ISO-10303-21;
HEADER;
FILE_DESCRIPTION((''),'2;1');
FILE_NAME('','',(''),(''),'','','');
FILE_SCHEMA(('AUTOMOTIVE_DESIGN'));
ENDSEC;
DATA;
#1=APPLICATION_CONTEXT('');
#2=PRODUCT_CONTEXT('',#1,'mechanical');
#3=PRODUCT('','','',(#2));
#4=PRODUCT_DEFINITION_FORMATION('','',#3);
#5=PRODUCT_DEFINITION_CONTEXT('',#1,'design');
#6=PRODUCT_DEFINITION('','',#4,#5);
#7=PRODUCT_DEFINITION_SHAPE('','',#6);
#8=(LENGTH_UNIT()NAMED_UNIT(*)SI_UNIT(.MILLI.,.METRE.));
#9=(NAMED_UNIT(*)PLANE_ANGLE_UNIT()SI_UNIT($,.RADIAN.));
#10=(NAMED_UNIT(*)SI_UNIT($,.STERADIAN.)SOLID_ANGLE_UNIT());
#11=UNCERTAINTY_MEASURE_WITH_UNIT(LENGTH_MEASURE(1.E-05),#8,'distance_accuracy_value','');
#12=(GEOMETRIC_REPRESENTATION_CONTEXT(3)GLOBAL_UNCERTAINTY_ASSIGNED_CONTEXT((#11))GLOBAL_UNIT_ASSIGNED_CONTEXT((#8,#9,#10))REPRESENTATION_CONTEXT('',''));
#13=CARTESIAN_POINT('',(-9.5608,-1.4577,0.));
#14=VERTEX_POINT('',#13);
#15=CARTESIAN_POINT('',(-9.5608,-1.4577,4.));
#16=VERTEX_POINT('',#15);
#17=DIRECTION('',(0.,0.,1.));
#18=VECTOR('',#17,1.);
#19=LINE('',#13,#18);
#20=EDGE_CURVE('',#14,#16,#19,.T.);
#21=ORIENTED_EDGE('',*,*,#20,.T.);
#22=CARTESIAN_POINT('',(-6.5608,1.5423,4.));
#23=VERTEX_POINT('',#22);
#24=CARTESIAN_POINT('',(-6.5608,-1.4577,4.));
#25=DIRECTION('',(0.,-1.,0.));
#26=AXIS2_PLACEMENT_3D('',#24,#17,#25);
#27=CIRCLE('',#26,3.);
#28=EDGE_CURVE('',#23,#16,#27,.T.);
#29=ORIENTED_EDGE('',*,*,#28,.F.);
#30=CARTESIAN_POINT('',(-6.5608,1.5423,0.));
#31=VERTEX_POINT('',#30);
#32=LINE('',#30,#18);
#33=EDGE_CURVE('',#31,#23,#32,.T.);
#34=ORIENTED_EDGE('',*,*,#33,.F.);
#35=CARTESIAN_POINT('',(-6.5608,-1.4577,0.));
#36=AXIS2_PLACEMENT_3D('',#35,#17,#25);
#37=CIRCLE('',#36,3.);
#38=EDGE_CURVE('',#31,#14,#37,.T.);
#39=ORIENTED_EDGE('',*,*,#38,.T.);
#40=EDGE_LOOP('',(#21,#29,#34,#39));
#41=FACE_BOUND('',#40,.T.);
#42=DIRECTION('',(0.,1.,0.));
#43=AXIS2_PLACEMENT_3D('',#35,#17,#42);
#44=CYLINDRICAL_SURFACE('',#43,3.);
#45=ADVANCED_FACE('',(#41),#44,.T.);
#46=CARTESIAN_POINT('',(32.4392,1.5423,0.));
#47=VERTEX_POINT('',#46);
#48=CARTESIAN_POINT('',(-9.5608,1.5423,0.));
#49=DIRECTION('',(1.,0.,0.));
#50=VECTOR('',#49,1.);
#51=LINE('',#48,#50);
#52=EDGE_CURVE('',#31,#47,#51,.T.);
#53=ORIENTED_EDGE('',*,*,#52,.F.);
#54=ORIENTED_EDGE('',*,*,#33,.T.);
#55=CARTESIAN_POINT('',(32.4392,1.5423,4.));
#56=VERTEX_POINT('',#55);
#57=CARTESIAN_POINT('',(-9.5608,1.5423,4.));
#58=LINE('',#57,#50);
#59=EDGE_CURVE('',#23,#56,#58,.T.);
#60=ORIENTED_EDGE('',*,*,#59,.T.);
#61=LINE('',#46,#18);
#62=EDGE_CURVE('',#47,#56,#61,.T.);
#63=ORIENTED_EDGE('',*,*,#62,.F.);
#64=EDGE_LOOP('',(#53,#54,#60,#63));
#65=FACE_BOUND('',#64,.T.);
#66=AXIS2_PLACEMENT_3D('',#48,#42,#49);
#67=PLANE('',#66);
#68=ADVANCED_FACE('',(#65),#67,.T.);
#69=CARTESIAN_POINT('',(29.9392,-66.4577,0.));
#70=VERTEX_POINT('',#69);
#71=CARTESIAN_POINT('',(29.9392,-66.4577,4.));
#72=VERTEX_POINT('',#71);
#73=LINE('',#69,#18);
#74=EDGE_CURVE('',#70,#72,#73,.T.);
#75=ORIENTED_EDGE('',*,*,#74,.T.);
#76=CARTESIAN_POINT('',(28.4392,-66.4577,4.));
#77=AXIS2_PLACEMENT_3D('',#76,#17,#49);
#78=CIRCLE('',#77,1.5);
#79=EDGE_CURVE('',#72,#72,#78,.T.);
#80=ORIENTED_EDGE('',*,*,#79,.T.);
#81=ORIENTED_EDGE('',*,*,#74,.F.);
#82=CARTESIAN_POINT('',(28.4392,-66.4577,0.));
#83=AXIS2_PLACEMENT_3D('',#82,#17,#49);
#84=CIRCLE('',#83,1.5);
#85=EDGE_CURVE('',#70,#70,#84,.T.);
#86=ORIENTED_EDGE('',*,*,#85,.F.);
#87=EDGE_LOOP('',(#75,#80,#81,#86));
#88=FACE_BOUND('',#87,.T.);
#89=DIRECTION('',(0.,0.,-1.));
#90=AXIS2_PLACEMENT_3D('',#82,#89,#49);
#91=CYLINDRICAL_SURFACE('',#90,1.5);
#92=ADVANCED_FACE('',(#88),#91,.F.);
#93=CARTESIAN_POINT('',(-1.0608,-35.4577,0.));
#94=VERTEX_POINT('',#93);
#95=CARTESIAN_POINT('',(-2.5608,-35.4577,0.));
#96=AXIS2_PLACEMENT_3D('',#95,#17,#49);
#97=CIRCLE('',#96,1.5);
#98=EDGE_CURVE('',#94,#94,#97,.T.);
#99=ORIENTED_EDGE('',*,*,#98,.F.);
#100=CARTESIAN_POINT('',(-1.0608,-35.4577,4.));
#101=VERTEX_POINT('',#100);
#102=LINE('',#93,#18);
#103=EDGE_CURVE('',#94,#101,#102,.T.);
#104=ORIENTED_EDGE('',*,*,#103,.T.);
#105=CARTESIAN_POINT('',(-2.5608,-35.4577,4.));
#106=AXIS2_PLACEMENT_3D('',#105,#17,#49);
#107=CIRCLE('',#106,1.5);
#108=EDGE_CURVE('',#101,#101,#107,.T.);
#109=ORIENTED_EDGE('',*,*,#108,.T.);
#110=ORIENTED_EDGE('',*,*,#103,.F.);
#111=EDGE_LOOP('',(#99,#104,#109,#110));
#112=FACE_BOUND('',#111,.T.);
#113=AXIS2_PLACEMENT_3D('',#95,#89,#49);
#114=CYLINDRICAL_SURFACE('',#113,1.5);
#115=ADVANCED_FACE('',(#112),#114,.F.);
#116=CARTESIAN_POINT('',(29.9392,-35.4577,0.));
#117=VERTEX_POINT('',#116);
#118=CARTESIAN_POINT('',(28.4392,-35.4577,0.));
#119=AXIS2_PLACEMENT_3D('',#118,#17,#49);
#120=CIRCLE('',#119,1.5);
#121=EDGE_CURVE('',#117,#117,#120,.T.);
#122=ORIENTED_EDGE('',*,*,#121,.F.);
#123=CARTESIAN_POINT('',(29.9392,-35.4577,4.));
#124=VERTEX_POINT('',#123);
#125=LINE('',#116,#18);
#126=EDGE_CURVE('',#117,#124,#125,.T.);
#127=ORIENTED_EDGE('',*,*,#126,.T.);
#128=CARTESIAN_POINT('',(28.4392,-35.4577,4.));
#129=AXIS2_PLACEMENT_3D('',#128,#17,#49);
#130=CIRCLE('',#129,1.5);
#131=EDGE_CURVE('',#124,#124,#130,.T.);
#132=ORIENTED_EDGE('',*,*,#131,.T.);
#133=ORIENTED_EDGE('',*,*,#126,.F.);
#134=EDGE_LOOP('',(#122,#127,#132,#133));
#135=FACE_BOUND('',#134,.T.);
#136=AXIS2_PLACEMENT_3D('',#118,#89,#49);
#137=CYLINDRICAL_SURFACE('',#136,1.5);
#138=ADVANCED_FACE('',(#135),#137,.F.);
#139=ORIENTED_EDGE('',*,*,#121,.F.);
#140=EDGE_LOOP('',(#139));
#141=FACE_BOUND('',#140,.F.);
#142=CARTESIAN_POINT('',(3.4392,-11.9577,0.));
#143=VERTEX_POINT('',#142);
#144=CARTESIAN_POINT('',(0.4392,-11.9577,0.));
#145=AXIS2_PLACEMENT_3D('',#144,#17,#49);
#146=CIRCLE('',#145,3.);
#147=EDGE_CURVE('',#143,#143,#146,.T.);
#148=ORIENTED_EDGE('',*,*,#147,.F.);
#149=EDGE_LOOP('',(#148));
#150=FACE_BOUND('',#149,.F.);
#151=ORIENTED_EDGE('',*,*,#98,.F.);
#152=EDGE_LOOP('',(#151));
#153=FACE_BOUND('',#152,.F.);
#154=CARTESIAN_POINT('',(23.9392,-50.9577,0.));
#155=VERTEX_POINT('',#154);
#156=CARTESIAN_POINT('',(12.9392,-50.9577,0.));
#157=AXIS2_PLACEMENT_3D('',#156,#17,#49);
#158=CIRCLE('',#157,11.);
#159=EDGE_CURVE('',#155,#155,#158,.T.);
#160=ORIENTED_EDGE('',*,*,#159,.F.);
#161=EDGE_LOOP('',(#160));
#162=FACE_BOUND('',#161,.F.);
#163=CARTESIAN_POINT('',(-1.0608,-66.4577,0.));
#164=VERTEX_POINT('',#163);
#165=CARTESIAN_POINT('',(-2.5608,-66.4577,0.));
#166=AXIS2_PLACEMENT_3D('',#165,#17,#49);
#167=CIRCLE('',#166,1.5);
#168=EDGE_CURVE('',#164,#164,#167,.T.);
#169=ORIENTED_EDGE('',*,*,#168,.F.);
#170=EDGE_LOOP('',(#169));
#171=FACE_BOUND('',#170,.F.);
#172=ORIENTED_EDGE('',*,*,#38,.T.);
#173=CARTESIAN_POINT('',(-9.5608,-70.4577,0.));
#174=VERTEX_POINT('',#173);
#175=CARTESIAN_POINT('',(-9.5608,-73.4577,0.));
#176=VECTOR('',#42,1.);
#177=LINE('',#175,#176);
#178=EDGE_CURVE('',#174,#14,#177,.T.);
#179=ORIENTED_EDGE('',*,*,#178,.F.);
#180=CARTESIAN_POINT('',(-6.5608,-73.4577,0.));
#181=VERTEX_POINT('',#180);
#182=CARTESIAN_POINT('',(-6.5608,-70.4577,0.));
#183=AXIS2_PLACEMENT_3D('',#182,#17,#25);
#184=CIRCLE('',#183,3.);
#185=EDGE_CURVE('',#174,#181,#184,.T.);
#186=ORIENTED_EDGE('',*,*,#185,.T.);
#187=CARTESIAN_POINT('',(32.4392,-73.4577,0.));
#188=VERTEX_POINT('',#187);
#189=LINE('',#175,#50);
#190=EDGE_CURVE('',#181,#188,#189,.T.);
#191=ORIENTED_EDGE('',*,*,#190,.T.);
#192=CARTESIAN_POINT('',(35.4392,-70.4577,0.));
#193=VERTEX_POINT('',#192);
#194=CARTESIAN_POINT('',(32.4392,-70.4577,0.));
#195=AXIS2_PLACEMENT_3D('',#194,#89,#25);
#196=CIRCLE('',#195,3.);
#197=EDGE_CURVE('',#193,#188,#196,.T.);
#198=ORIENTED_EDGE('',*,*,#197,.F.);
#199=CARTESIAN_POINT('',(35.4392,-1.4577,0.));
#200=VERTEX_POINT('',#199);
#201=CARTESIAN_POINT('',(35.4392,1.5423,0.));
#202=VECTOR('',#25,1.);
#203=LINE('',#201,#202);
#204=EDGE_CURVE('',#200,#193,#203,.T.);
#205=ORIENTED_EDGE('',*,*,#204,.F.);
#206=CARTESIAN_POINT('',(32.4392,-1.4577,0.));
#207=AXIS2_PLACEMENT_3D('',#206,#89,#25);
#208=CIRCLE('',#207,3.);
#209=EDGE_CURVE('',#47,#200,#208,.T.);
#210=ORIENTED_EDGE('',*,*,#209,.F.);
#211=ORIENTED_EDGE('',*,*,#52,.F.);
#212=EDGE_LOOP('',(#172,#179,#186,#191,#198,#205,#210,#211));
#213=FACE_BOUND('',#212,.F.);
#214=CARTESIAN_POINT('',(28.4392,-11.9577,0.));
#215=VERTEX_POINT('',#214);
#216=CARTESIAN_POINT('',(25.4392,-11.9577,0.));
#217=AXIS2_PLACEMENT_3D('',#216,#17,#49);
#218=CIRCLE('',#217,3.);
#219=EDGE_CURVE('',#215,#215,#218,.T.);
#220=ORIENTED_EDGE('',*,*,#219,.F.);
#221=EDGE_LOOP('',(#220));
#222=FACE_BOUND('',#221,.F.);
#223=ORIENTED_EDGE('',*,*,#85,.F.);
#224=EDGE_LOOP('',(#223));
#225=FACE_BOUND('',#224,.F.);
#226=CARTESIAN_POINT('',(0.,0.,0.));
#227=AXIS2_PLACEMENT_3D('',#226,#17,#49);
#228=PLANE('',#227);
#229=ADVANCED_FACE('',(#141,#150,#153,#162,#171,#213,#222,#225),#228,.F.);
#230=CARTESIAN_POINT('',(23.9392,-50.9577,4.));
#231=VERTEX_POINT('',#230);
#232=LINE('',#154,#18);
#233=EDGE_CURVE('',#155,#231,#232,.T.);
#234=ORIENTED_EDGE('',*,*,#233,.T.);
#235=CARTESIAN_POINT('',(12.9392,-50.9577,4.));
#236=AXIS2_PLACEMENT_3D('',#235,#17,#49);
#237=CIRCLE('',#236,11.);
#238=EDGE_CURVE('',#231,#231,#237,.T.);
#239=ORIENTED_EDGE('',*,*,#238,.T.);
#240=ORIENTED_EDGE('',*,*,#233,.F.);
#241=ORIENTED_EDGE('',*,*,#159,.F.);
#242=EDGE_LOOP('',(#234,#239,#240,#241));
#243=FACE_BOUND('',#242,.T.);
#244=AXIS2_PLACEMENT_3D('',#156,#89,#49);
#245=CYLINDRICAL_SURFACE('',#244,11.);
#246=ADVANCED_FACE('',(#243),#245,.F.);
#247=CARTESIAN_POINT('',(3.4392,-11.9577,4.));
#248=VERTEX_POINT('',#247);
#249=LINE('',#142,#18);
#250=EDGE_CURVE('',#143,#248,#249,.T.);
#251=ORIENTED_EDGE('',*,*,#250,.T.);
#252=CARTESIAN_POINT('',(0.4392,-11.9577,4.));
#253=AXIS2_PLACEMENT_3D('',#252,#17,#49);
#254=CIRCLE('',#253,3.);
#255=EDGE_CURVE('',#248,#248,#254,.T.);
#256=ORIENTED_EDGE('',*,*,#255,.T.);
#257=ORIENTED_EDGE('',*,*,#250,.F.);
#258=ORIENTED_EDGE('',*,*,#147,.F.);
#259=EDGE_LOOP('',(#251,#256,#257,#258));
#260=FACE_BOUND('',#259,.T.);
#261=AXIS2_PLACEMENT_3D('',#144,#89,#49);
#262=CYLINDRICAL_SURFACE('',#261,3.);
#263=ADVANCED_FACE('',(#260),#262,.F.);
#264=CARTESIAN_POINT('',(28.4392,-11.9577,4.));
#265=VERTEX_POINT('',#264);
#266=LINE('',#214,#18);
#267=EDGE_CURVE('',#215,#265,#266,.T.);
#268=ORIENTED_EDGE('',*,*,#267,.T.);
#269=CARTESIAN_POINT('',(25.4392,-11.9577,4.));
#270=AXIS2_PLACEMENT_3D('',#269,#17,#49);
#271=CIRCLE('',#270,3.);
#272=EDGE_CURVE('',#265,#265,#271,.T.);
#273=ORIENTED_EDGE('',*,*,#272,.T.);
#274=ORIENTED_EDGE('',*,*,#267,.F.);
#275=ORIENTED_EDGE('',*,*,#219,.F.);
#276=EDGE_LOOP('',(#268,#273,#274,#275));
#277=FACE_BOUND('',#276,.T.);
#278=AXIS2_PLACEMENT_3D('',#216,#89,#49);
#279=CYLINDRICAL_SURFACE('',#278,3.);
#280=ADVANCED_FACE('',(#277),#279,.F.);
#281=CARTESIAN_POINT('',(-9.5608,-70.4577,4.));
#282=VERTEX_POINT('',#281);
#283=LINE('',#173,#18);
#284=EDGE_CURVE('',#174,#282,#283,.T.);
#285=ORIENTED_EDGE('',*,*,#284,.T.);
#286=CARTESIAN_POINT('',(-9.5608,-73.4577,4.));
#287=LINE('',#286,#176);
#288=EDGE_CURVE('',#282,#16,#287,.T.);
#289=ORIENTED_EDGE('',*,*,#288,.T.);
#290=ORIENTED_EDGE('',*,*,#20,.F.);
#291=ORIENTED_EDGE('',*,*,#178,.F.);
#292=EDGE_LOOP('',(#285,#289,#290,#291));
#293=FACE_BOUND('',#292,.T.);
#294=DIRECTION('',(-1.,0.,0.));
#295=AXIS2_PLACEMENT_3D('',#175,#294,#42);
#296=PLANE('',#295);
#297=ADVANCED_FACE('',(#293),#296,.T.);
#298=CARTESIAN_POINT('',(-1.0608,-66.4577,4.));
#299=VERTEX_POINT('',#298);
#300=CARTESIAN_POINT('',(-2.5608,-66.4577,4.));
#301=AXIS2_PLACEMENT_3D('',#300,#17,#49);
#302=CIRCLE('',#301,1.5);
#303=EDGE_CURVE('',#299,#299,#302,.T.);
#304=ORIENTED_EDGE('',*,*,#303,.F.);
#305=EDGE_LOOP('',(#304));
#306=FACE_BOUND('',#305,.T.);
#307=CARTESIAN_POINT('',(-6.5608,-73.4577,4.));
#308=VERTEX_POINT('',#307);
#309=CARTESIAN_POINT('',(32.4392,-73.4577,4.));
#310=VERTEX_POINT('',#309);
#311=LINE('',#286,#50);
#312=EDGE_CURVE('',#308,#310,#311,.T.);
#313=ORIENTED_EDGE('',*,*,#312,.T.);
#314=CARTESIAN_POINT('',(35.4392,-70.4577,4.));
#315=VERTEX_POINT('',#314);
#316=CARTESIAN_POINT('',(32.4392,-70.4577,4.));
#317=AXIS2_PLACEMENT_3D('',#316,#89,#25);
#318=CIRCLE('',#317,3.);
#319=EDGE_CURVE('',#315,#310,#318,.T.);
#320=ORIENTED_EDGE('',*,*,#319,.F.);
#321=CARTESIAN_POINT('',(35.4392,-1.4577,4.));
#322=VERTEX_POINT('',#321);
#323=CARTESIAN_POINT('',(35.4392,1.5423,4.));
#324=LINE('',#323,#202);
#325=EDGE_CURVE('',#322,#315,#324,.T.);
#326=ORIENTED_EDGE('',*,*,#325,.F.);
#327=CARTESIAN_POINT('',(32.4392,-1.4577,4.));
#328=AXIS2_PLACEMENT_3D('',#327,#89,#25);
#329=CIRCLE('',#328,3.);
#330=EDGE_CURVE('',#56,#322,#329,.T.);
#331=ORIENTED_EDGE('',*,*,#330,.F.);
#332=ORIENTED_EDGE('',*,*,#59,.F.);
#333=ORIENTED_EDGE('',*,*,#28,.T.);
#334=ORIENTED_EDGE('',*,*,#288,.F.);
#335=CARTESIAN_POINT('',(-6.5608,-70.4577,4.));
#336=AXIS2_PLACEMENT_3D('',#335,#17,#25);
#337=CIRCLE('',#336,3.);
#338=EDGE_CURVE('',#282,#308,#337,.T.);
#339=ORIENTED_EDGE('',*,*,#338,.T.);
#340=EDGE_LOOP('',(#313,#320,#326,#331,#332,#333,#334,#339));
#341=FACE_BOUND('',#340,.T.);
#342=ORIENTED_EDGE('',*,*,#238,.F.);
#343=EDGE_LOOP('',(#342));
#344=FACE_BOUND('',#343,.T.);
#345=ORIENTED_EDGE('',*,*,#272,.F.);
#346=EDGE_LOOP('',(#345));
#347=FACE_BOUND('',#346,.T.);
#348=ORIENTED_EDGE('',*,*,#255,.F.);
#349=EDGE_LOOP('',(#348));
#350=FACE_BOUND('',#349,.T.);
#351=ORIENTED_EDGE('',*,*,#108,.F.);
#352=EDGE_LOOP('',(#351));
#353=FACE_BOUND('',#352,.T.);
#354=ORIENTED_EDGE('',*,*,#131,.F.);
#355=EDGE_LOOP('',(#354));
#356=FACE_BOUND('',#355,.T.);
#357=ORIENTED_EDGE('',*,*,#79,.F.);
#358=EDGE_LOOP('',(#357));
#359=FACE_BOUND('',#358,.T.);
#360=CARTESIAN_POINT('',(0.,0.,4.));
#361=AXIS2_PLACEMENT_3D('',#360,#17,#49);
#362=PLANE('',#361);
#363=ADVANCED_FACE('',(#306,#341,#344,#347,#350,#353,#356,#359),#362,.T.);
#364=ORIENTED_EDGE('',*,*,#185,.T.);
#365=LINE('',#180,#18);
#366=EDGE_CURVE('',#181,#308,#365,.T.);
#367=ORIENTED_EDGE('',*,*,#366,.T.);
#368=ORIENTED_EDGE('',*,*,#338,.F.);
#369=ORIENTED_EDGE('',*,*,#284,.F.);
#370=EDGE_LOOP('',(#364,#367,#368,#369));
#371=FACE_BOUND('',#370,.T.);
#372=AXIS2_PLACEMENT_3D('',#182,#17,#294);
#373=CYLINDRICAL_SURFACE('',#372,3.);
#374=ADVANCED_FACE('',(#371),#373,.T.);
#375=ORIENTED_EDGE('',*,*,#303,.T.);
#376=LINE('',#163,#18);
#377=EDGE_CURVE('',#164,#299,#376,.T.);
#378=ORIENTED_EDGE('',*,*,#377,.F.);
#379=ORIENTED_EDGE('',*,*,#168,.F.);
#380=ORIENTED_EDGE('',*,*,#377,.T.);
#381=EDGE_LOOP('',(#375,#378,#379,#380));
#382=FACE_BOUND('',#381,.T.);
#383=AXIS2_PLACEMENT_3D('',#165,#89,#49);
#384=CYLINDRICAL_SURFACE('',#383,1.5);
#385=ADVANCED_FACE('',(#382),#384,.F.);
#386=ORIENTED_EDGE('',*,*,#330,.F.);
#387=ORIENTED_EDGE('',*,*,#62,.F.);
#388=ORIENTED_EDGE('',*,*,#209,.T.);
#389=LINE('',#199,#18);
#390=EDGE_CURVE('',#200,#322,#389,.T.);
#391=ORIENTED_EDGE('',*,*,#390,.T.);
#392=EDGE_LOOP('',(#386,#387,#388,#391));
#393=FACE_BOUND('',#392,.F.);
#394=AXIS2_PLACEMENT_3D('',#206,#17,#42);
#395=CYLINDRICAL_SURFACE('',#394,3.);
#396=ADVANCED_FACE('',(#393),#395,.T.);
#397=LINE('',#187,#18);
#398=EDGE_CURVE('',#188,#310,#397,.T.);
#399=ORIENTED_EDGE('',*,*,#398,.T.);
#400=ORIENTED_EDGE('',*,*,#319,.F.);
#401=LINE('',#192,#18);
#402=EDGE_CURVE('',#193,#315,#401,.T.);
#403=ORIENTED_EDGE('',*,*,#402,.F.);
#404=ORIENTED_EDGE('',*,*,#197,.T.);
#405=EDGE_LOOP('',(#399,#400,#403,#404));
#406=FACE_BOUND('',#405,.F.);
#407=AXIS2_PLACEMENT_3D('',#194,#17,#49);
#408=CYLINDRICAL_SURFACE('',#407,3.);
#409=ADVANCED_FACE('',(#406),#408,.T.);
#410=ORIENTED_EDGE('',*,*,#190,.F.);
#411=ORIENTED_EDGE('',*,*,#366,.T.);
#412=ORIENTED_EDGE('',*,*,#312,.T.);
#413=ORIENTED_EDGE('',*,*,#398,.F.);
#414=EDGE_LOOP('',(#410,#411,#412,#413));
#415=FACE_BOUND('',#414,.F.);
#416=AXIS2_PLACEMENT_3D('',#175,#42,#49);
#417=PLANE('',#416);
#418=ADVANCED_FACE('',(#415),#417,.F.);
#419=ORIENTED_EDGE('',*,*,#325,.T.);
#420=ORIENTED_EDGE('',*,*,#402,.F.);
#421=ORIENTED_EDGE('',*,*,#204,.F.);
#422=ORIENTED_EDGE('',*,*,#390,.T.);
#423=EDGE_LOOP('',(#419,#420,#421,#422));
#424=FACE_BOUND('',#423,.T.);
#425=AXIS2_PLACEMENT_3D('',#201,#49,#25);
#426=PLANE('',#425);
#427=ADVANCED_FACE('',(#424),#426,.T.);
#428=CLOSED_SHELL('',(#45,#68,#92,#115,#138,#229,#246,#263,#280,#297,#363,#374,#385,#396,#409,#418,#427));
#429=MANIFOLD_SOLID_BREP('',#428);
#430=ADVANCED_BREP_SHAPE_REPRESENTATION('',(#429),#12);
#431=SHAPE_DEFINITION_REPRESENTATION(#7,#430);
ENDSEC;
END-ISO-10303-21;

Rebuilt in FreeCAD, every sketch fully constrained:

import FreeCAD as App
import Part
import Sketcher
from FreeCAD import Vector
Q = App.Units.Quantity


def edges_at(feature, points):
    """Names of the edges that pass closest to the given points."""
    edges = feature.Shape.Edges
    near = lambda p: min(range(len(edges)), key=lambda i: edges[i].distToShape(Part.Vertex(*p))[0])
    return sorted({f"Edge{near(p) + 1}" for p in points})


def add_polygon(sketch, points):
    """Adds a closed chain of lines whose ends are joined by coincident constraints."""
    first, n = sketch.GeometryCount, len(points)
    for a, b in zip(points, points[1:] + points[:1]):
        sketch.addGeometry(Part.LineSegment(App.Vector(*a, 0), App.Vector(*b, 0)), False)
    for i in range(n):
        sketch.addConstraint(Sketcher.Constraint("Coincident", first + i, 2, first + (i + 1) % n, 1))

doc = App.newDocument("Part")
params = doc.addObject("Spreadsheet::Sheet", "Params")
for row, (alias, value) in enumerate([
    ("sketch1_diameter", "6 mm"),
    ("sketch1_diameter2", "3 mm"),
    ("sketch1_diameter3", "22 mm"),
    ("sketch1_width", "45 mm"),
    ("sketch1_height", "75 mm"),
    ("pad1_length", "4 mm"),
    ("fillet_radius", "3 mm"),
], start=1):
    params.set(f"A{row}", alias)
    params.set(f"B{row}", "=" + value)
    params.setAlias(f"B{row}", alias)

body = doc.addObject("PartDesign::Body", "Body")

sketch1 = doc.addObject("Sketcher::SketchObject", "Sketch")
body.addObject(sketch1)
sketch1.AttachmentSupport = (doc.XY_Plane, [""])
sketch1.MapMode = "FlatFace"
add_polygon(sketch1, [(35.4392, 1.5423), (-9.5608, 1.5423), (-9.5608, -73.4577), (35.4392, -73.4577)])
sketch1.addGeometry(Part.Circle(Vector(0.4392, -11.9577, 0), Vector(0, 0, 1), 3), False)
sketch1.addGeometry(Part.Circle(Vector(25.4392, -11.9577, 0), Vector(0, 0, 1), 3), False)
sketch1.addGeometry(Part.Circle(Vector(28.4392, -66.4577, 0), Vector(0, 0, 1), 1.5), False)
sketch1.addGeometry(Part.Circle(Vector(12.9392, -50.9577, 0), Vector(0, 0, 1), 11), False)
sketch1.addGeometry(Part.Circle(Vector(-2.5608, -35.4577, 0), Vector(0, 0, 1), 1.5), False)
sketch1.addGeometry(Part.Circle(Vector(28.4392, -35.4577, 0), Vector(0, 0, 1), 1.5), False)
sketch1.addGeometry(Part.Circle(Vector(-2.5608, -66.4577, 0), Vector(0, 0, 1), 1.5), False)
sketch1.addConstraint(Sketcher.Constraint("Horizontal", 0))
sketch1.addConstraint(Sketcher.Constraint("Vertical", 1))
sketch1.addConstraint(Sketcher.Constraint("Horizontal", 2))
sketch1.addConstraint(Sketcher.Constraint("Vertical", 3))
sketch1.addConstraint(Sketcher.Constraint("Equal", 4, 5))
sketch1.addConstraint(Sketcher.Constraint("Equal", 6, 8))
sketch1.addConstraint(Sketcher.Constraint("Equal", 8, 9))
sketch1.addConstraint(Sketcher.Constraint("Equal", 9, 10))
sketch1.addConstraint(Sketcher.Constraint("Horizontal", 4, 3, 5, 3))
sketch1.addConstraint(Sketcher.Constraint("Horizontal", 8, 3, 9, 3))
sketch1.addConstraint(Sketcher.Constraint("Horizontal", 6, 3, 10, 3))
sketch1.addConstraint(Sketcher.Constraint("Vertical", 6, 3, 9, 3))
sketch1.addConstraint(Sketcher.Constraint("Vertical", 8, 3, 10, 3))
sketch1.addConstraint(Sketcher.Constraint("Diameter", 4, Q("6 mm")))
sketch1.addConstraint(Sketcher.Constraint("Diameter", 6, Q("3 mm")))
sketch1.addConstraint(Sketcher.Constraint("Diameter", 7, Q("22 mm")))
sketch1.addConstraint(Sketcher.Constraint("DistanceX", 0, 2, 0, 1, Q("45 mm")))
sketch1.addConstraint(Sketcher.Constraint("DistanceY", 1, 2, 1, 1, Q("75 mm")))
sketch1.addConstraint(Sketcher.Constraint("DistanceX", 5, 3, 6, 3, Q("3 mm")))
sketch1.addConstraint(Sketcher.Constraint("DistanceX", 8, 3, 4, 3, Q("3 mm")))
sketch1.addConstraint(Sketcher.Constraint("DistanceX", 0, 2, 4, 3, Q("10 mm")))
sketch1.addConstraint(Sketcher.Constraint("DistanceX", 5, 3, 3, 2, Q("10 mm")))
sketch1.addConstraint(Sketcher.Constraint("DistanceY", 4, 3, 0, 2, Q("13.5 mm")))
sketch1.addConstraint(Sketcher.Constraint("DistanceY", 7, 3, 4, 3, Q("39 mm")))
sketch1.addConstraint(Sketcher.Constraint("DistanceY", 6, 3, 8, 3, Q("31 mm")))
sketch1.addConstraint(Sketcher.Constraint("DistanceY", 8, 3, 0, 2, Q("37 mm")))
sketch1.addConstraint(Sketcher.Constraint("DistanceX", 7, 3, 6, 3, Q("15.5 mm")))
sketch1.addConstraint(Sketcher.Constraint("DistanceX", -1, 1, 4, 3, Q("0.4392 mm")))
sketch1.addConstraint(Sketcher.Constraint("DistanceY", 4, 3, -1, 1, Q("11.9577 mm")))
sketch1.setExpression("Constraints[17]", "Params.sketch1_diameter")
sketch1.setExpression("Constraints[18]", "Params.sketch1_diameter2")
sketch1.setExpression("Constraints[19]", "Params.sketch1_diameter3")
sketch1.setExpression("Constraints[20]", "Params.sketch1_width")
sketch1.setExpression("Constraints[21]", "Params.sketch1_height")
pad1 = doc.addObject("PartDesign::Pad", "Pad")
body.addObject(pad1)
pad1.Profile = sketch1
pad1.setExpression("Length", "Params.pad1_length")
doc.recompute()

fillet = doc.addObject("PartDesign::Fillet", "Fillet")
body.addObject(fillet)
fillet.Base = (pad1, edges_at(pad1, [
    (35.439, -73.458, 2),
    (-9.561, -73.458, 2),
    (35.439, 1.542, 2),
    (-9.561, 1.542, 2),
]))
fillet.setExpression("Radius", "Params.fillet_radius")

doc.recompute()
